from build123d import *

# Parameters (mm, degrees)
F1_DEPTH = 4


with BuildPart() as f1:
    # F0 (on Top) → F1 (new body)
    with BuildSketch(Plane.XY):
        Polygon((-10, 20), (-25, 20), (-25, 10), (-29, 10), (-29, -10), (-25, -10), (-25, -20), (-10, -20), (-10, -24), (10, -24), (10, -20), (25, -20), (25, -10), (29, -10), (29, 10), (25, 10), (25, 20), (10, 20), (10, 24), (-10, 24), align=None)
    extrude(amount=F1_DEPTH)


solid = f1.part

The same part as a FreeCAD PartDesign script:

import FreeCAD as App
import Part
import Sketcher
Q = App.Units.Quantity


def add_polygon(sketch, points):
    """Adds a closed chain of lines whose ends are joined by coincident constraints."""
    first, n = sketch.GeometryCount, len(points)
    for a, b in zip(points, points[1:] + points[:1]):
        sketch.addGeometry(Part.LineSegment(App.Vector(*a, 0), App.Vector(*b, 0)), False)
    for i in range(n):
        sketch.addConstraint(Sketcher.Constraint("Coincident", first + i, 2, first + (i + 1) % n, 1))

doc = App.newDocument("Part")
body = doc.addObject("PartDesign::Body", "Body")

sketch1 = doc.addObject("Sketcher::SketchObject", "Sketch")
body.addObject(sketch1)
sketch1.AttachmentSupport = (doc.XY_Plane, [""])
sketch1.MapMode = "FlatFace"
add_polygon(sketch1, [(-10, 20), (-25, 20), (-25, 10), (-29, 10), (-29, -10), (-25, -10), (-25, -20), (-10, -20), (-10, -24), (10, -24), (10, -20), (25, -20), (25, -10), (29, -10), (29, 10), (25, 10), (25, 20), (10, 20), (10, 24), (-10, 24)])
sketch1.addConstraint([
    Sketcher.Constraint("Horizontal", 0),
    Sketcher.Constraint("Vertical", 1),
    Sketcher.Constraint("Horizontal", 2),
    Sketcher.Constraint("Vertical", 3),
    Sketcher.Constraint("Horizontal", 4),
    Sketcher.Constraint("Vertical", 5),
    Sketcher.Constraint("Horizontal", 6),
    Sketcher.Constraint("Vertical", 7),
    Sketcher.Constraint("Horizontal", 8),
    Sketcher.Constraint("Vertical", 9),
    Sketcher.Constraint("Horizontal", 10),
    Sketcher.Constraint("Vertical", 11),
    Sketcher.Constraint("Horizontal", 12),
    Sketcher.Constraint("Vertical", 13),
    Sketcher.Constraint("Horizontal", 14),
    Sketcher.Constraint("Vertical", 15),
    Sketcher.Constraint("Horizontal", 16),
    Sketcher.Constraint("Vertical", 17),
    Sketcher.Constraint("Horizontal", 18),
    Sketcher.Constraint("Vertical", 19),
    Sketcher.Constraint("Symmetric", 0, 2, 10, 2, -1, 1),
    Sketcher.Constraint("Symmetric", 2, 2, 12, 2, -1, 1),
    Sketcher.Constraint("Symmetric", 4, 2, 14, 2, -1, 1),
    Sketcher.Constraint("Symmetric", 6, 2, 16, 2, -1, 1),
    Sketcher.Constraint("Symmetric", 8, 2, 18, 2, -1, 1),
    Sketcher.Constraint("Symmetric", 6, 2, 9, 2, -2),
    Sketcher.Constraint("Symmetric", 4, 2, 11, 2, -2),
    Sketcher.Constraint("Equal", 18, 3),
    Sketcher.Constraint("Equal", 14, 7),
    Sketcher.Constraint("DistanceX", 0, 2, 0, 1, Q("15 mm")),
    Sketcher.Constraint("DistanceX", 2, 2, 2, 1, Q("4 mm")),
    Sketcher.Constraint("DistanceX", 8, 1, 8, 2, Q("20 mm")),
    Sketcher.Constraint("DistanceY", 1, 2, 1, 1, Q("10 mm")),
])
pad1 = doc.addObject("PartDesign::Pad", "Pad")
body.addObject(pad1)
pad1.Profile = sketch1
pad1.Length = 4

doc.recompute()
